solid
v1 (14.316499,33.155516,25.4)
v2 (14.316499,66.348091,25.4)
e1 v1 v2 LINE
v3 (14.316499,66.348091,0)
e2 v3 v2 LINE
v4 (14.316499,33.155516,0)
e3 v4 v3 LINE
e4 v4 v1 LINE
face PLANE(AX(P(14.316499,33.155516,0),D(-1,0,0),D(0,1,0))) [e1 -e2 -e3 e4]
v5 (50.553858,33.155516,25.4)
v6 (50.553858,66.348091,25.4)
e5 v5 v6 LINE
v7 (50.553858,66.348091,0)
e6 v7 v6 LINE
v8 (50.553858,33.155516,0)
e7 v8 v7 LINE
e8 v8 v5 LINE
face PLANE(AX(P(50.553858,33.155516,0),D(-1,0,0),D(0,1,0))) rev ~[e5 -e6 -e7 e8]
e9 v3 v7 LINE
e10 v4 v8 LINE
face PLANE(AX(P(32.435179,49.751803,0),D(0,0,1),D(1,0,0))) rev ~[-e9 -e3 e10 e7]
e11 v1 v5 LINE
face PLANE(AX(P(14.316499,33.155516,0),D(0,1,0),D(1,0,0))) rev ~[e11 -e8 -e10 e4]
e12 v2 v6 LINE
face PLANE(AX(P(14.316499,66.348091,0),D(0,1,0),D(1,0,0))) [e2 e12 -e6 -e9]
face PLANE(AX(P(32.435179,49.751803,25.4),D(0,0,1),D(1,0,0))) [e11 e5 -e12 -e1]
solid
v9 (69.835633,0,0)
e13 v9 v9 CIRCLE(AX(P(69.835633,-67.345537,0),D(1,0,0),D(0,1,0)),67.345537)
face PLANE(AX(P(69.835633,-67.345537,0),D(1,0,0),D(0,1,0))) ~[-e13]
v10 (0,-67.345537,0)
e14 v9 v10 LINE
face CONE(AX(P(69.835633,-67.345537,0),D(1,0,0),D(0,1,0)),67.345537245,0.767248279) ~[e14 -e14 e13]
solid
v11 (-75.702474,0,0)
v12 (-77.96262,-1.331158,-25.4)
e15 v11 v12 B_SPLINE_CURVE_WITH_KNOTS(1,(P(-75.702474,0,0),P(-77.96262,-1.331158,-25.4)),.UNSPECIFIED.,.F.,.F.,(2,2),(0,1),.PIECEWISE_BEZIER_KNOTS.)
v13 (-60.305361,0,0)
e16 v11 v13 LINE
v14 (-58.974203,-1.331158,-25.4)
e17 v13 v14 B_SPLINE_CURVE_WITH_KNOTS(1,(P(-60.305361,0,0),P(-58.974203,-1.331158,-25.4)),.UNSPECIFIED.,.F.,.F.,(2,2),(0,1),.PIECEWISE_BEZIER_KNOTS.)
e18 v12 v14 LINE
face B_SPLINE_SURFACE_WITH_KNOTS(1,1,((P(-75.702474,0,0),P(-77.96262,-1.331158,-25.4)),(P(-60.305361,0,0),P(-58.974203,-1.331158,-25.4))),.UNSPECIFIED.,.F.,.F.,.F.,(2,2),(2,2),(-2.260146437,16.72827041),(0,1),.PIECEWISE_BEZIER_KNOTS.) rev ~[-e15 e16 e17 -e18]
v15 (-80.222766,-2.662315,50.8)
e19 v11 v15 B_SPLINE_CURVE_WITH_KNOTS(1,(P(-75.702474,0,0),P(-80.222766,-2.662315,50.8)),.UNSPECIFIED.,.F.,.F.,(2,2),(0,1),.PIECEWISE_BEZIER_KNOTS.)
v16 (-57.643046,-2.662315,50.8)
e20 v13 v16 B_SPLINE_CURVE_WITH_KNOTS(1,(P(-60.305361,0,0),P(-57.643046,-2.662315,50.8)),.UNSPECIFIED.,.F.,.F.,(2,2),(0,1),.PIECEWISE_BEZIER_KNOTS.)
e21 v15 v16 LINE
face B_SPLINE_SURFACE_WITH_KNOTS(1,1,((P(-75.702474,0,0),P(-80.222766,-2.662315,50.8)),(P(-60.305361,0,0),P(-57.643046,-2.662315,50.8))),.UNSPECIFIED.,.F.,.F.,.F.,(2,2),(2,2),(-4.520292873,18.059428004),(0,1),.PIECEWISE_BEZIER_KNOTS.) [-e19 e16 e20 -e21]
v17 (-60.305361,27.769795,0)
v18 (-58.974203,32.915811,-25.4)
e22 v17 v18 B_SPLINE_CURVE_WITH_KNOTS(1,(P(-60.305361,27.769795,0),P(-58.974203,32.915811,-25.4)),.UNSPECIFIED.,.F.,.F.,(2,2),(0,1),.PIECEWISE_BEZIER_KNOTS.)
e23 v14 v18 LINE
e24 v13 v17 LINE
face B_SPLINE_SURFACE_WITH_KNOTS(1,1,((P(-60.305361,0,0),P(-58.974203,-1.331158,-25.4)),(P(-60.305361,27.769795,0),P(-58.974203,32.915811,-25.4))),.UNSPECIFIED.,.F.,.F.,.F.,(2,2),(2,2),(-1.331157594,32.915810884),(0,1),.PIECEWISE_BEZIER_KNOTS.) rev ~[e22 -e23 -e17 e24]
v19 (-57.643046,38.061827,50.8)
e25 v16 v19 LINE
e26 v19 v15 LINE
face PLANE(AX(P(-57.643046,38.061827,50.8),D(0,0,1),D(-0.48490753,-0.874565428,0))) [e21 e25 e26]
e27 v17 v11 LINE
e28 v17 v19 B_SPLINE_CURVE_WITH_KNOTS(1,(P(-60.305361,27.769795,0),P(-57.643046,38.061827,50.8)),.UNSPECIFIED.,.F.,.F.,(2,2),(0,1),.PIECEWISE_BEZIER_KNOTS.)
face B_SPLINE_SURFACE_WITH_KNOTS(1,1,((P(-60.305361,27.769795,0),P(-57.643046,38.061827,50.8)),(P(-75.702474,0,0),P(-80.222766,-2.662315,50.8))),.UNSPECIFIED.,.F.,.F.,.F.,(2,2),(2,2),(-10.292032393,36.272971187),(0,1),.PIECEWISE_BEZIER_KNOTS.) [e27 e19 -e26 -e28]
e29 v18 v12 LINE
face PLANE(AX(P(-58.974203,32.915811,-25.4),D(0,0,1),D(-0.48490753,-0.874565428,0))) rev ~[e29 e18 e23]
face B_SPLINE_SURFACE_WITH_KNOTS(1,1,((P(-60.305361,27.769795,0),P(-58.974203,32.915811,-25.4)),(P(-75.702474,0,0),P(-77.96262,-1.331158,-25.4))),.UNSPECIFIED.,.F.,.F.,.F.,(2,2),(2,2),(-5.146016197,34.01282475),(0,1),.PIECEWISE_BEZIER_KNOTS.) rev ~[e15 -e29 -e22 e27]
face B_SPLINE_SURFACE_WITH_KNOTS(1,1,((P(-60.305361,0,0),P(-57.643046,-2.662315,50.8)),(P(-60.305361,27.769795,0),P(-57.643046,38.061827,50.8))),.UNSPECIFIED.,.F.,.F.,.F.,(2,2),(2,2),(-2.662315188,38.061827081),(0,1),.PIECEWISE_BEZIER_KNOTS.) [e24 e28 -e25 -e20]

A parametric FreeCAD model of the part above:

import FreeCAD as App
import Part
import Sketcher
from FreeCAD import Vector
Q = App.Units.Quantity


def add_polygon(sketch, points):
    """Adds a closed chain of lines whose ends are joined by coincident constraints."""
    first, n = sketch.GeometryCount, len(points)
    for a, b in zip(points, points[1:] + points[:1]):
        sketch.addGeometry(Part.LineSegment(App.Vector(*a, 0), App.Vector(*b, 0)), False)
    for i in range(n):
        sketch.addConstraint(Sketcher.Constraint("Coincident", first + i, 2, first + (i + 1) % n, 1))

doc = App.newDocument("Part")
body = doc.addObject("PartDesign::Body", "Body")

sketch1 = body.newObject("Sketcher::SketchObject", "Sketch")
sketch1.AttachmentSupport = (doc.getObject("XY_Plane"), [""])
sketch1.MapMode = "FlatFace"
add_polygon(sketch1, [(-60, 28), (-76, 0), (-60, 0)])
sketch1.addConstraint([
    Sketcher.Constraint("Horizontal", 1),
    Sketcher.Constraint("Vertical", 2),
    Sketcher.Constraint("PointOnObject", 0, 2, -1),
    Sketcher.Constraint("Distance", 0, 31.752678),
    Sketcher.Constraint("DistanceX", 1, 1, 1, 2, 15.397113),
    Sketcher.Constraint("DistanceX", 1, 2, -1, 1, 60.305361),
])
pad1 = body.newObject("PartDesign::Pad", "Pad")
pad1.Profile = sketch1
pad1.Length = Q("2 in")
pad1.TaperAngle = 3
pad2 = body.newObject("PartDesign::Pad", "Pad001")
pad2.Profile = sketch1
pad2.Length = Q("1 in")
pad2.Reversed = True
pad2.TaperAngle = 3
body2 = doc.addObject("PartDesign::Body", "Body001")

sketch2 = body2.newObject("Sketcher::SketchObject", "Sketch001")
sketch2.AttachmentSupport = (doc.getObject("XY_Plane001"), [""])
sketch2.MapMode = "FlatFace"
add_polygon(sketch2, [(70, 0), (0, -67), (70, -67)])
sketch2.addGeometry(Part.LineSegment(Vector(0, -67, 0), Vector(70, -67, 0)), True)
sketch2.addConstraint([
    Sketcher.Constraint("Horizontal", 1),
    Sketcher.Constraint("Vertical", 2),
    Sketcher.Constraint("Horizontal", 3),
    Sketcher.Constraint("Coincident", 3, 1, 0, 2),
    Sketcher.Constraint("PointOnObject", 0, 2, -2),
    Sketcher.Constraint("PointOnObject", 2, 2, -1),
    Sketcher.Constraint("Vertical", 2, 2, 3, 2),
    Sketcher.Constraint("DistanceX", 1, 1, 1, 2, 69.835633),
    Sketcher.Constraint("DistanceY", 2, 1, 2, 2, 67.345537),
])
revolution = body2.newObject("PartDesign::Revolution", "Revolution")
revolution.Profile = sketch2
revolution.ReferenceAxis = (sketch2, ["Axis0"])
revolution.Angle = 360
body3 = doc.addObject("PartDesign::Body", "Body002")

sketch3 = body3.newObject("Sketcher::SketchObject", "Sketch002")
sketch3.AttachmentSupport = (doc.getObject("XY_Plane002"), [""])
sketch3.MapMode = "FlatFace"
add_polygon(sketch3, [(14, 66), (14, 33), (51, 33), (51, 66)])
sketch3.addConstraint([
    Sketcher.Constraint("Vertical", 0),
    Sketcher.Constraint("Horizontal", 1),
    Sketcher.Constraint("Vertical", 2),
    Sketcher.Constraint("Horizontal", 3),
    Sketcher.Constraint("DistanceX", 1, 1, 1, 2, 36.237359),
    Sketcher.Constraint("DistanceX", -1, 1, 0, 2, 14.316499),
    Sketcher.Constraint("DistanceY", 0, 2, 0, 1, 33.192575),
    Sketcher.Constraint("DistanceY", -1, 1, 2, 2, 66.348091),
])
pad3 = body3.newObject("PartDesign::Pad", "Pad002")
pad3.Profile = sketch3
pad3.Length = Q("1 in")

doc.recompute()
